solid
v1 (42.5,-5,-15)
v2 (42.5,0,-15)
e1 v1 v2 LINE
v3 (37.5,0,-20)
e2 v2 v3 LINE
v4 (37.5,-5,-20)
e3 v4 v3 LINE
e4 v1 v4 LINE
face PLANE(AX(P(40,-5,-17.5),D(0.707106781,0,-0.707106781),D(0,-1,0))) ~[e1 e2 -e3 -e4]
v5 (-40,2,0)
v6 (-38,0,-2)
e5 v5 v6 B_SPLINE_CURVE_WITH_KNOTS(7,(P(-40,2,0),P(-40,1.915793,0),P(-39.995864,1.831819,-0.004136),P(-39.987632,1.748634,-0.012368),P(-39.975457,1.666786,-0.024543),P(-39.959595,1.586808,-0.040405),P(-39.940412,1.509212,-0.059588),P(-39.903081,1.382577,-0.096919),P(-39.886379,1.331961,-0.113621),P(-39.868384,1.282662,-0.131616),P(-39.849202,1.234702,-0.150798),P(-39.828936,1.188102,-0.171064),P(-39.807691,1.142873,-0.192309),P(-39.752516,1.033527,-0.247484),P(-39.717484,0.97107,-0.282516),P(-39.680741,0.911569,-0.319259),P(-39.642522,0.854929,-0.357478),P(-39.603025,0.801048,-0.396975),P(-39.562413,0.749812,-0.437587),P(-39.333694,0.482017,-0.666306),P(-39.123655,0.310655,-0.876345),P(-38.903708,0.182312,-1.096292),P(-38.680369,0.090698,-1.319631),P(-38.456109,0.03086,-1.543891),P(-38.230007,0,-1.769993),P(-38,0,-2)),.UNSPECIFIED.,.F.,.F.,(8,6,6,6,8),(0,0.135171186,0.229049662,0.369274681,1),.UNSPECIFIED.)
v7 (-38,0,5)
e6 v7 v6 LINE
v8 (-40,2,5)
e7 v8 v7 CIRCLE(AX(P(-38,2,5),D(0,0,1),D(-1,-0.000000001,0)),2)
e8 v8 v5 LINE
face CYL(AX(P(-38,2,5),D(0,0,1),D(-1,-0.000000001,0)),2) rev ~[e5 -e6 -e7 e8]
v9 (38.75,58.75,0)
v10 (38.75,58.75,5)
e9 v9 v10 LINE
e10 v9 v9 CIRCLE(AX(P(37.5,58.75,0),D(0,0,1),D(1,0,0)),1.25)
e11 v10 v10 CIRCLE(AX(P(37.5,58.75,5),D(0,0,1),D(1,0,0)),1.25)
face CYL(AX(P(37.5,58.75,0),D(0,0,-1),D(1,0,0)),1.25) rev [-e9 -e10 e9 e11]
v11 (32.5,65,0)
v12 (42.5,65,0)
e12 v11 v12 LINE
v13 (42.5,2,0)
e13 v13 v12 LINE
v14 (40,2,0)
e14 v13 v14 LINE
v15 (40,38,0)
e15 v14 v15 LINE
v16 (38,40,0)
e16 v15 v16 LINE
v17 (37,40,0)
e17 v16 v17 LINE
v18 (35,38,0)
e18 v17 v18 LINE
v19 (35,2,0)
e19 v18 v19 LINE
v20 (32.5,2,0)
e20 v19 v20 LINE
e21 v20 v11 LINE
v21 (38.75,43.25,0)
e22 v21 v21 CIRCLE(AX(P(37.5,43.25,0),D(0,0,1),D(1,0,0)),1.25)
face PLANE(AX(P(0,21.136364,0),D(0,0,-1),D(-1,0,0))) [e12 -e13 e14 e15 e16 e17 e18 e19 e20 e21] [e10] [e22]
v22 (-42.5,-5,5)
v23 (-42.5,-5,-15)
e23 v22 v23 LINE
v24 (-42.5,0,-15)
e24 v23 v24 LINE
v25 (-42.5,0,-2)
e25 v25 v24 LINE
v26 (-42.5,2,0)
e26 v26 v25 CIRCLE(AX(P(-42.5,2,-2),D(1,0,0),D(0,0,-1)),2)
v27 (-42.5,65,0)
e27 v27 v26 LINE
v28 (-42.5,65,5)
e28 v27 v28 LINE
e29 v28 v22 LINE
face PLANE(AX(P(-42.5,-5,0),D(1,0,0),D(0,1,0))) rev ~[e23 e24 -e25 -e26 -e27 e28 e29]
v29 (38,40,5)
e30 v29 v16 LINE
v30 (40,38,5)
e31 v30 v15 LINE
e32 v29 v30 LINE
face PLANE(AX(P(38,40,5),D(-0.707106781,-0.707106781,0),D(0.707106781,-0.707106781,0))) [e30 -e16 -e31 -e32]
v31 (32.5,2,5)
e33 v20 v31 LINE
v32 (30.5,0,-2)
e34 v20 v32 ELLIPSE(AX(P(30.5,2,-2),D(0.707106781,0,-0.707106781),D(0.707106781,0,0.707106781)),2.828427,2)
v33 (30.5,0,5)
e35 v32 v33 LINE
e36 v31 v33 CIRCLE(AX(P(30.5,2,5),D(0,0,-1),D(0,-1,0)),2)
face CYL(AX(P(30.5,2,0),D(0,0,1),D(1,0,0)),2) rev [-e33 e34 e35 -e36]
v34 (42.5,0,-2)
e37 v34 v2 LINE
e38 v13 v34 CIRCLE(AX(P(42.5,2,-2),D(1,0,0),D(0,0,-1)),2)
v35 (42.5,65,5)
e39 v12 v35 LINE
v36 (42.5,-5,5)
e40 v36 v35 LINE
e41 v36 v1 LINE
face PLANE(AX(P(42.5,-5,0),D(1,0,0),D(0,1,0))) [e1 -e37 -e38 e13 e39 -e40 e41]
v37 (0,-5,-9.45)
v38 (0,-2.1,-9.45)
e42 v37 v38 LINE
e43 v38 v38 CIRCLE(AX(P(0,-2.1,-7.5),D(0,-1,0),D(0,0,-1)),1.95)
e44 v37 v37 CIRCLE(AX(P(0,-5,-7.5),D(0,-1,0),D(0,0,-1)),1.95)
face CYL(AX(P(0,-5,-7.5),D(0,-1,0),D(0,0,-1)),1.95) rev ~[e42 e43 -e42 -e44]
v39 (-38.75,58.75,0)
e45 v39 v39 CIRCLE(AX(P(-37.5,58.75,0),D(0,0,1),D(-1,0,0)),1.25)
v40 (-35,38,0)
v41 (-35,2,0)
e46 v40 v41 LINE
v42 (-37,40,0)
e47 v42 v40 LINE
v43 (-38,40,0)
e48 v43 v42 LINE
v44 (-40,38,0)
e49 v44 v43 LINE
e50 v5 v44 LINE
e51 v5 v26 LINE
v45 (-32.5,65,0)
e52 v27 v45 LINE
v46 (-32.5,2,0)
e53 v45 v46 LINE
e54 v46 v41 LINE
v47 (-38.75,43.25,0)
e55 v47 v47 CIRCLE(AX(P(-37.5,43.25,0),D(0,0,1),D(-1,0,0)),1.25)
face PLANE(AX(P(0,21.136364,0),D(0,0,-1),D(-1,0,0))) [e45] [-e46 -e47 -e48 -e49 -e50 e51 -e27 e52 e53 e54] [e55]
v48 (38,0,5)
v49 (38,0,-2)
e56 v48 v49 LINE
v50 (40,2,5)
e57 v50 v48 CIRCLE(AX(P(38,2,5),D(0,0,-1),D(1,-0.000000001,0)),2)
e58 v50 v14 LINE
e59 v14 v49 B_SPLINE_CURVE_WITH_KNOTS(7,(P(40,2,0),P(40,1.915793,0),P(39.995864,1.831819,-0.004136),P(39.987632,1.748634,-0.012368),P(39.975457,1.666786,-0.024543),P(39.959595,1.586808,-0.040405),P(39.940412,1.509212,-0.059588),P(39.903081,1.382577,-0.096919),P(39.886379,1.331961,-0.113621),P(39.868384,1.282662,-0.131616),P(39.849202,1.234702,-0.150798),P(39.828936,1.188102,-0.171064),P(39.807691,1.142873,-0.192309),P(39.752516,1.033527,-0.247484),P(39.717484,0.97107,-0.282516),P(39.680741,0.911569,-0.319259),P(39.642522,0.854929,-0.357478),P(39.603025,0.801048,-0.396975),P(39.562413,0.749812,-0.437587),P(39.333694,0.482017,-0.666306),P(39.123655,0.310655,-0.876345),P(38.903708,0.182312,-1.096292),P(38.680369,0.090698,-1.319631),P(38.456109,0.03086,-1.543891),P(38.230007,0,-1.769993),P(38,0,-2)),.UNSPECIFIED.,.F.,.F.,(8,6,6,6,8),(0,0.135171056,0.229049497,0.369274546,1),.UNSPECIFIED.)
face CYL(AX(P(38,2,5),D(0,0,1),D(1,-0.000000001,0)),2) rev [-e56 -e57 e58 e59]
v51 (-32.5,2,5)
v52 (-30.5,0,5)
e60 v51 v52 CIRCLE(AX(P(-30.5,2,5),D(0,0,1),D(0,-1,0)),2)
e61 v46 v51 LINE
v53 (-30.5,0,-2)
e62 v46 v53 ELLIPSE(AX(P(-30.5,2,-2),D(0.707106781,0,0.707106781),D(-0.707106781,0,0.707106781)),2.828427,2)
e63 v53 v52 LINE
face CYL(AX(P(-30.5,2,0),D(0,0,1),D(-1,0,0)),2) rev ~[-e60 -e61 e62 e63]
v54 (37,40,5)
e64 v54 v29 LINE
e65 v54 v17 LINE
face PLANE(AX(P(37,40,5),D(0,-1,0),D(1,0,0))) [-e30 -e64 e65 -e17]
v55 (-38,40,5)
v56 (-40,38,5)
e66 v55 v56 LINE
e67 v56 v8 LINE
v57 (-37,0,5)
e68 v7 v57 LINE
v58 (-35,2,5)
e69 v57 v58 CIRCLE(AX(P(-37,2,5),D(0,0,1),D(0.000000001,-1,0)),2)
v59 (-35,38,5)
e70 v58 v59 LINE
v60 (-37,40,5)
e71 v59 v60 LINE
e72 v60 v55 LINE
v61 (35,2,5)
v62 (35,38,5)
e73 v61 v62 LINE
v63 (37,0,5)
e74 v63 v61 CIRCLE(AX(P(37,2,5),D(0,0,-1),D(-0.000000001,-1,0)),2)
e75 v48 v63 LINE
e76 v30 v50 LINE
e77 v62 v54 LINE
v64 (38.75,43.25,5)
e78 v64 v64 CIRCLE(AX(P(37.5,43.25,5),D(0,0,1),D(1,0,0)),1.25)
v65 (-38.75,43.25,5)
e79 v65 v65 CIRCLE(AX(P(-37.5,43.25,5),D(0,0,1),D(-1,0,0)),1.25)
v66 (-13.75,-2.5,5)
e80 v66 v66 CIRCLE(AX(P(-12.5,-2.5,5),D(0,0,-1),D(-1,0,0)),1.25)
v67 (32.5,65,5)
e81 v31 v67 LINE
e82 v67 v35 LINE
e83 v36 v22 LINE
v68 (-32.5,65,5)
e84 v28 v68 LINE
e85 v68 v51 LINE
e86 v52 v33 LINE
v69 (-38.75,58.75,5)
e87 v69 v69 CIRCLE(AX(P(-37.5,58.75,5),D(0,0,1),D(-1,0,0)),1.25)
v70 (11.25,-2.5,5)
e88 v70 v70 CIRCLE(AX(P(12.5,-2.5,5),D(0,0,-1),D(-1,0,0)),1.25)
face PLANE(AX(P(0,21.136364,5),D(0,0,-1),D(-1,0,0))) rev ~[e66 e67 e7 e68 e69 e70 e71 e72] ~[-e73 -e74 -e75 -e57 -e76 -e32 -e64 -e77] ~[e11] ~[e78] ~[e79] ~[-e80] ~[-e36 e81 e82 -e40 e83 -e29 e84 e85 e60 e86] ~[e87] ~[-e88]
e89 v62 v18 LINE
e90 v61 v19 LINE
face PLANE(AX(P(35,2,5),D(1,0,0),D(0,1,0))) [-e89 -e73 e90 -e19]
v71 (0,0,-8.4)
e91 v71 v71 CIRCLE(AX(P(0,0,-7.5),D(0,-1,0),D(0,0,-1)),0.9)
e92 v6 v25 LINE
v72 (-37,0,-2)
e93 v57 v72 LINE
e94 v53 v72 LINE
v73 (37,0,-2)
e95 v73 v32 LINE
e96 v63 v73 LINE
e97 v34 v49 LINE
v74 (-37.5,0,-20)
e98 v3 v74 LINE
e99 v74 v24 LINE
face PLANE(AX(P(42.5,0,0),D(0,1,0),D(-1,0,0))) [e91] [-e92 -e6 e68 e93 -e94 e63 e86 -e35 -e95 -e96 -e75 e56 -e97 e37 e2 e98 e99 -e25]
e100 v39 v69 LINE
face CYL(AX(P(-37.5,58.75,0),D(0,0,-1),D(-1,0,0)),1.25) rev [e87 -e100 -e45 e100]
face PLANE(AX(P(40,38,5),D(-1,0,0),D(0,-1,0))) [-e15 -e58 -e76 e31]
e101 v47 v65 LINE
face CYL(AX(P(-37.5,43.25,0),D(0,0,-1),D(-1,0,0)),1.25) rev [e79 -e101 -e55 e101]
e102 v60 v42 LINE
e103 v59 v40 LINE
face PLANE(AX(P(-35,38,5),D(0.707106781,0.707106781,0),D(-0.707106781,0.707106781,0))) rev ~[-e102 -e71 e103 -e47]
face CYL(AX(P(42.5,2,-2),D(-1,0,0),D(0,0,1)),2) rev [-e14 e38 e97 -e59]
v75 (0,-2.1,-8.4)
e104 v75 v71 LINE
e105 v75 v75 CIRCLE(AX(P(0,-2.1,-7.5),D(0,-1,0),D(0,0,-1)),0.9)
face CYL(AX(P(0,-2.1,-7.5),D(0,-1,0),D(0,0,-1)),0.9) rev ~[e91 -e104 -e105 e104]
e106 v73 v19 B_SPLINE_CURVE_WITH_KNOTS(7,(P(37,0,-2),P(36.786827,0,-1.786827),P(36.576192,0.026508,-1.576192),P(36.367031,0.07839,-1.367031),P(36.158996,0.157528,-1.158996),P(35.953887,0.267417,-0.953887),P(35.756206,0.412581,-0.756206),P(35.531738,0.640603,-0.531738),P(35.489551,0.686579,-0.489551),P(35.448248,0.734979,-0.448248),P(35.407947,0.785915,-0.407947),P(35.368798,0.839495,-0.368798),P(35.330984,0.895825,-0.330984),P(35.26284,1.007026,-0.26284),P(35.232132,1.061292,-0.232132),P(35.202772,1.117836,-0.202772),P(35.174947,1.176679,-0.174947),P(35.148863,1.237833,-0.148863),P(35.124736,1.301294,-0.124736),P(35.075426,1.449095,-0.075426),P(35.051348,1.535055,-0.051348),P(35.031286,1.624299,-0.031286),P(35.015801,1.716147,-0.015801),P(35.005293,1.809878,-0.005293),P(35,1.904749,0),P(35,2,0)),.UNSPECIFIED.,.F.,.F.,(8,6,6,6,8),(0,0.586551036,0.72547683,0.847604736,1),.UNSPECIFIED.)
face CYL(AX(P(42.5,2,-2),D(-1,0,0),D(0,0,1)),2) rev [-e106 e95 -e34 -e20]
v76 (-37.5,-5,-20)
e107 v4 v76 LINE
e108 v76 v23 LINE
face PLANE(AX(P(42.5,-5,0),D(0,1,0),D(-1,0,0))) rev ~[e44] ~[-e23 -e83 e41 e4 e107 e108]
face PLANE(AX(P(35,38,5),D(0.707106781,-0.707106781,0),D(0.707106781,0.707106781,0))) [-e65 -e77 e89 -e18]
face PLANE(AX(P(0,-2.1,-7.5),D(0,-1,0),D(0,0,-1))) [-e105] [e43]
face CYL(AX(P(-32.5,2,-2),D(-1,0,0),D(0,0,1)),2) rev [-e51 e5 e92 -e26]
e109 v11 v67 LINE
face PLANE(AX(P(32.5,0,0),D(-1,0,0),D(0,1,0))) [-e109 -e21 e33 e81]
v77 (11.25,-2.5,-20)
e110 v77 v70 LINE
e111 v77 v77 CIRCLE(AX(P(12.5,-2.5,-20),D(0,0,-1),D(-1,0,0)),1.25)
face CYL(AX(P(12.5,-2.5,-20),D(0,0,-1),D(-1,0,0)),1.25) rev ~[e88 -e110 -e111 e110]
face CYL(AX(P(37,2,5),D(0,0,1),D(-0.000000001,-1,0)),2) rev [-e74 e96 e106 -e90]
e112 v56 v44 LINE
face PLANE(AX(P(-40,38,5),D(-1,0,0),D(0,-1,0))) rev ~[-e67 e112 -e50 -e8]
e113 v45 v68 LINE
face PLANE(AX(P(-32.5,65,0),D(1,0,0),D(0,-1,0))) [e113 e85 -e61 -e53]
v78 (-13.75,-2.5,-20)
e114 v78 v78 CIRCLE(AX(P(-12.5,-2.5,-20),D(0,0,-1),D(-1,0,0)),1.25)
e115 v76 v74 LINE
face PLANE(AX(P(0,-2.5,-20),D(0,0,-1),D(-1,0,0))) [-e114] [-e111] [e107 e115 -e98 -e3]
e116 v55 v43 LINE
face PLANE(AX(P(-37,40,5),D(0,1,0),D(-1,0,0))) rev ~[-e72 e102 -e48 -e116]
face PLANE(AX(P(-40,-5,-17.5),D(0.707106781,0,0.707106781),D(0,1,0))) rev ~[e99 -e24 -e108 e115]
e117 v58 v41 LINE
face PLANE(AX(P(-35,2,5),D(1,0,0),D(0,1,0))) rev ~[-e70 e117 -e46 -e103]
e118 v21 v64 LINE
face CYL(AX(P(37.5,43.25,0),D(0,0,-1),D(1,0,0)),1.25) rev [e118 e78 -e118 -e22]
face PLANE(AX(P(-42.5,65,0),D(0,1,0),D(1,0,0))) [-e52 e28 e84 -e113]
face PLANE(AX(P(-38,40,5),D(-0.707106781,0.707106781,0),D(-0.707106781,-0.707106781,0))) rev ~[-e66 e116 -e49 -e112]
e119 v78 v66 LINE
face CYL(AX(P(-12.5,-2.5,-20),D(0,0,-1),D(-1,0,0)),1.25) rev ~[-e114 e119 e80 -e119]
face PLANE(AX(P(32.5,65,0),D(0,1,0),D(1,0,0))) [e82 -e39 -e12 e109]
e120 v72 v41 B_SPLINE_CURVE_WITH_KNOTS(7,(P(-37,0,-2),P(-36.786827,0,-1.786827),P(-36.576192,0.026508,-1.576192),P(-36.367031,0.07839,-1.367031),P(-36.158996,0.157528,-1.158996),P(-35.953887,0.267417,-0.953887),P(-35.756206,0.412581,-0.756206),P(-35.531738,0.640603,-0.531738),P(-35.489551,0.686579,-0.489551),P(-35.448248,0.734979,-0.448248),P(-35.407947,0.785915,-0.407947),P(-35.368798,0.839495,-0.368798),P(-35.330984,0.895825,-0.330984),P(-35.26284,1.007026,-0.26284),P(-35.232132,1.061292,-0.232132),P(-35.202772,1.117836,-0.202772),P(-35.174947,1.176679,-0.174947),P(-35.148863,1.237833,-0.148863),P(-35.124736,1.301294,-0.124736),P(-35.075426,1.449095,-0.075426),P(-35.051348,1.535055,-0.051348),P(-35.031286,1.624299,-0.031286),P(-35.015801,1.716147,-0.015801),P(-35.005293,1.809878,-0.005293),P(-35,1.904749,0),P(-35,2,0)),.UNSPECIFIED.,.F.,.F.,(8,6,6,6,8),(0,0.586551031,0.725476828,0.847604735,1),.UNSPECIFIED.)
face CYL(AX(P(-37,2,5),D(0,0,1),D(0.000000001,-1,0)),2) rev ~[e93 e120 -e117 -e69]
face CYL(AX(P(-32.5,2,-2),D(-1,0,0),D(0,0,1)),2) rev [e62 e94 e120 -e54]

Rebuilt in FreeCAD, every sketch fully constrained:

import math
import FreeCAD as App
import Part
import Sketcher
Q = App.Units.Quantity


def edges_at(feature, points):
    """Names of the edges that pass closest to the given points."""
    edges = feature.Shape.Edges
    near = lambda p: min(range(len(edges)), key=lambda i: edges[i].distToShape(Part.Vertex(*p))[0])
    return sorted({f"Edge{near(p) + 1}" for p in points})

doc = App.newDocument("Part")
body = doc.addObject("PartDesign::Body", "Body")

sketch1 = doc.addObject("Sketcher::SketchObject", "Sketch")
body.addObject(sketch1)
sketch1.AttachmentSupport = (doc.XY_Plane, [""])
sketch1.MapMode = "FlatFace"
sketch1.addGeometry([
    Part.LineSegment(App.Vector(32.5, 0, 0), App.Vector(-32.5, 0, 0)),
    Part.LineSegment(App.Vector(-32.5, 0, 0), App.Vector(-32.5, 65, 0)),
    Part.LineSegment(App.Vector(-32.5, 65, 0), App.Vector(-42.5, 65, 0)),
    Part.LineSegment(App.Vector(-42.5, 65, 0), App.Vector(-42.5, -5, 0)),
    Part.LineSegment(App.Vector(-42.5, -5, 0), App.Vector(42.5, -5, 0)),
    Part.LineSegment(App.Vector(42.5, -5, 0), App.Vector(42.5, 65, 0)),
    Part.LineSegment(App.Vector(42.5, 65, 0), App.Vector(32.5, 65, 0)),
    Part.LineSegment(App.Vector(32.5, 65, 0), App.Vector(32.5, 0, 0)),
    Part.Circle(App.Vector(37.5, 43.25, 0), App.Vector(0, 0, 1), 1.25),
    Part.Circle(App.Vector(-37.5, 43.25, 0), App.Vector(0, 0, 1), 1.25),
    Part.Circle(App.Vector(37.5, 58.75, 0), App.Vector(0, 0, 1), 1.25),
    Part.Circle(App.Vector(-37.5, 58.75, 0), App.Vector(0, 0, 1), 1.25),
], False)
sketch1.addConstraint([
    Sketcher.Constraint("Coincident", 0, 2, 1, 1),
    Sketcher.Constraint("Coincident", 1, 2, 2, 1),
    Sketcher.Constraint("Coincident", 2, 2, 3, 1),
    Sketcher.Constraint("Coincident", 3, 2, 4, 1),
    Sketcher.Constraint("Coincident", 4, 2, 5, 1),
    Sketcher.Constraint("Coincident", 5, 2, 6, 1),
    Sketcher.Constraint("Coincident", 6, 2, 7, 1),
    Sketcher.Constraint("Coincident", 7, 2, 0, 1),
    Sketcher.Constraint("Horizontal", 0),
    Sketcher.Constraint("Vertical", 1),
    Sketcher.Constraint("Horizontal", 2),
    Sketcher.Constraint("Vertical", 3),
    Sketcher.Constraint("Horizontal", 4),
    Sketcher.Constraint("Vertical", 5),
    Sketcher.Constraint("Horizontal", 6),
    Sketcher.Constraint("Vertical", 7),
    Sketcher.Constraint("Equal", 8, 9),
    Sketcher.Constraint("Equal", 9, 10),
    Sketcher.Constraint("Equal", 10, 11),
    Sketcher.Constraint("Symmetric", 0, 2, 7, 2, -1, 1),
    Sketcher.Constraint("Symmetric", 8, 3, 9, 3, -2),
    Sketcher.Constraint("Symmetric", 10, 3, 11, 3, -2),
    Sketcher.Constraint("Symmetric", 2, 2, 5, 2, -2),
    Sketcher.Constraint("Vertical", 8, 3, 10, 3),
    Sketcher.Constraint("Equal", 0, 1),
    Sketcher.Constraint("Diameter", 8, Q("2.5 mm")),
    Sketcher.Constraint("DistanceX", 0, 2, 0, 1, Q("65 mm")),
    Sketcher.Constraint("DistanceX", 2, 2, 2, 1, Q("10 mm")),
    Sketcher.Constraint("DistanceY", 3, 2, 3, 1, Q("70 mm")),
    Sketcher.Constraint("DistanceX", 9, 3, 8, 3, Q("75 mm")),
    Sketcher.Constraint("DistanceY", 8, 3, 10, 3, Q("15.5 mm")),
    Sketcher.Constraint("DistanceY", -1, 1, 8, 3, Q("43.25 mm")),
])
pad1 = doc.addObject("PartDesign::Pad", "Pad")
body.addObject(pad1)
pad1.Profile = sketch1
pad1.Length = 5

sketch2 = doc.addObject("Sketcher::SketchObject", "Sketch001")
body.addObject(sketch2)
sketch2.AttachmentSupport = (doc.XY_Plane, [""])
sketch2.MapMode = "FlatFace"
sketch2.addGeometry([
    Part.LineSegment(App.Vector(42.5, 0, 0), App.Vector(42.5, -5, 0)),
    Part.LineSegment(App.Vector(42.5, -5, 0), App.Vector(-42.5, -5, 0)),
    Part.LineSegment(App.Vector(-42.5, -5, 0), App.Vector(-42.5, 0, 0)),
    Part.LineSegment(App.Vector(-42.5, 0, 0), App.Vector(42.5, 0, 0)),
], False)
sketch2.addConstraint([
    Sketcher.Constraint("Coincident", 0, 2, 1, 1),
    Sketcher.Constraint("Coincident", 1, 2, 2, 1),
    Sketcher.Constraint("Coincident", 2, 2, 3, 1),
    Sketcher.Constraint("Coincident", 3, 2, 0, 1),
    Sketcher.Constraint("Vertical", 0),
    Sketcher.Constraint("Horizontal", 1),
    Sketcher.Constraint("Vertical", 2),
    Sketcher.Constraint("Horizontal", 3),
    Sketcher.Constraint("Symmetric", 2, 2, 3, 2, -1, 1),
    Sketcher.Constraint("DistanceX", 1, 2, 1, 1, Q("85 mm")),
    Sketcher.Constraint("DistanceY", 0, 2, 0, 1, Q("5 mm")),
])
pad2 = doc.addObject("PartDesign::Pad", "Pad001")
body.addObject(pad2)
pad2.Profile = sketch2
pad2.Length = 20
pad2.Reversed = True
doc.recompute()

fillet = doc.addObject("PartDesign::Fillet", "Fillet")
body.addObject(fillet)
fillet.Base = (pad2, edges_at(pad2, [
    (-37.5, 0, 0),
    (-32.5, 0, 2.5),
    (32.5, 0, 2.5),
    (37.5, 0, 0),
]))
fillet.Radius = 2

sketch3 = doc.addObject("Sketcher::SketchObject", "Sketch002")
body.addObject(sketch3)
sketch3.AttachmentSupport = (doc.XY_Plane, [""])
sketch3.MapMode = "FlatFace"
sketch3.AttachmentOffset = App.Placement(App.Vector(0, 0, 5), App.Rotation())
sketch3.addGeometry([
    Part.LineSegment(App.Vector(-38, 0, 0), App.Vector(-37, 0, 0)),
    Part.ArcOfCircle(Part.Circle(App.Vector(-37, 2, 0), App.Vector(0, 0, 1), 2), math.radians(-90), math.radians(0)),
    Part.LineSegment(App.Vector(-35, 2, 0), App.Vector(-35, 38, 0)),
    Part.LineSegment(App.Vector(-35, 38, 0), App.Vector(-37, 40, 0)),
    Part.LineSegment(App.Vector(-37, 40, 0), App.Vector(-38, 40, 0)),
    Part.LineSegment(App.Vector(-38, 40, 0), App.Vector(-40, 38, 0)),
    Part.LineSegment(App.Vector(-40, 38, 0), App.Vector(-40, 2, 0)),
    Part.ArcOfCircle(Part.Circle(App.Vector(-38, 2, 0), App.Vector(0, 0, 1), 2), math.radians(-180), math.radians(-90)),
    Part.LineSegment(App.Vector(37, 0, 0), App.Vector(38, 0, 0)),
    Part.ArcOfCircle(Part.Circle(App.Vector(38, 2, 0), App.Vector(0, 0, 1), 2), math.radians(-90), math.radians(0)),
    Part.LineSegment(App.Vector(40, 2, 0), App.Vector(40, 38, 0)),
    Part.LineSegment(App.Vector(40, 38, 0), App.Vector(38, 40, 0)),
    Part.LineSegment(App.Vector(38, 40, 0), App.Vector(37, 40, 0)),
    Part.LineSegment(App.Vector(37, 40, 0), App.Vector(35, 38, 0)),
    Part.LineSegment(App.Vector(35, 38, 0), App.Vector(35, 2, 0)),
    Part.ArcOfCircle(Part.Circle(App.Vector(37, 2, 0), App.Vector(0, 0, 1), 2), math.radians(-180), math.radians(-90)),
], False)
sketch3.addConstraint([
    Sketcher.Constraint("Tangent", 0, 2, 1, 1),
    Sketcher.Constraint("Tangent", 1, 2, 2, 1),
    Sketcher.Constraint("Coincident", 2, 2, 3, 1),
    Sketcher.Constraint("Coincident", 3, 2, 4, 1),
    Sketcher.Constraint("Coincident", 4, 2, 5, 1),
    Sketcher.Constraint("Coincident", 5, 2, 6, 1),
    Sketcher.Constraint("Tangent", 6, 2, 7, 1),
    Sketcher.Constraint("Tangent", 7, 2, 0, 1),
    Sketcher.Constraint("Tangent", 8, 2, 9, 1),
    Sketcher.Constraint("Tangent", 9, 2, 10, 1),
    Sketcher.Constraint("Coincident", 10, 2, 11, 1),
    Sketcher.Constraint("Coincident", 11, 2, 12, 1),
    Sketcher.Constraint("Coincident", 12, 2, 13, 1),
    Sketcher.Constraint("Coincident", 13, 2, 14, 1),
    Sketcher.Constraint("Tangent", 14, 2, 15, 1),
    Sketcher.Constraint("Tangent", 15, 2, 8, 1),
    Sketcher.Constraint("Horizontal", 0),
    Sketcher.Constraint("Vertical", 2),
    Sketcher.Constraint("Horizontal", 4),
    Sketcher.Constraint("Vertical", 6),
    Sketcher.Constraint("Horizontal", 8),
    Sketcher.Constraint("Vertical", 10),
    Sketcher.Constraint("Horizontal", 12),
    Sketcher.Constraint("Vertical", 14),
    Sketcher.Constraint("Equal", 1, 7),
    Sketcher.Constraint("Equal", 7, 9),
    Sketcher.Constraint("Equal", 9, 15),
    Sketcher.Constraint("Symmetric", 7, 2, 8, 2, -1, 1),
    Sketcher.Constraint("Symmetric", 1, 3, 15, 3, -2),
    Sketcher.Constraint("Symmetric", 4, 2, 11, 2, -2),
    Sketcher.Constraint("Perpendicular", 3, 5),
    Sketcher.Constraint("Perpendicular", 5, 11),
    Sketcher.Constraint("Perpendicular", 11, 13),
    Sketcher.Constraint("Horizontal", 2, 2, 5, 2),
    Sketcher.Constraint("Horizontal", 5, 2, 10, 2),
    Sketcher.Constraint("Horizontal", 10, 2, 13, 2),
    Sketcher.Constraint("Vertical", 0, 2, 3, 2),
    Sketcher.Constraint("Radius", 1, Q("2 mm")),
    Sketcher.Constraint("DistanceX", 0, 1, 0, 2, Q("1 mm")),
    Sketcher.Constraint("DistanceY", 2, 1, 2, 2, Q("36 mm")),
    Sketcher.Constraint("DistanceX", 1, 3, -1, 1, Q("37 mm")),
])
pocket1 = doc.addObject("PartDesign::Pocket", "Pocket")
body.addObject(pocket1)
pocket1.Profile = sketch3
pocket1.Length = 25

sketch4 = doc.addObject("Sketcher::SketchObject", "Sketch003")
body.addObject(sketch4)
sketch4.AttachmentSupport = (doc.XY_Plane, [""])
sketch4.MapMode = "FlatFace"
sketch4.AttachmentOffset = App.Placement(App.Vector(0, 0, -20), App.Rotation())
sketch4.addGeometry([
    Part.Circle(App.Vector(-12.5, -2.5, 0), App.Vector(0, 0, 1), 1.25),
    Part.Circle(App.Vector(12.5, -2.5, 0), App.Vector(0, 0, 1), 1.25),
], False)
sketch4.addConstraint([
    Sketcher.Constraint("Equal", 0, 1),
    Sketcher.Constraint("Symmetric", 0, 3, 1, 3, -2),
    Sketcher.Constraint("Diameter", 0, Q("2.5 mm")),
    Sketcher.Constraint("DistanceX", 0, 3, 1, 3, Q("25 mm")),
    Sketcher.Constraint("DistanceY", 0, 3, -1, 1, Q("2.5 mm")),
])
pocket2 = doc.addObject("PartDesign::Pocket", "Pocket001")
body.addObject(pocket2)
pocket2.Profile = sketch4
pocket2.Length = 58
pocket2.Reversed = True

sketch5 = doc.addObject("Sketcher::SketchObject", "Sketch004")
body.addObject(sketch5)
sketch5.AttachmentSupport = (doc.XZ_Plane, [""])
sketch5.MapMode = "FlatFace"
sketch5.AttachmentOffset = App.Placement(App.Vector(0, 0, 5), App.Rotation())
sketch5.addGeometry(Part.Circle(App.Vector(0, -7.5, 0), App.Vector(0, 0, 1), 1.95), False)
sketch5.addConstraint([
    Sketcher.Constraint("PointOnObject", 0, 3, -2),
    Sketcher.Constraint("Diameter", 0, Q("3.9 mm")),
    Sketcher.Constraint("DistanceY", 0, 3, -1, 1, Q("7.5 mm")),
])
pocket3 = doc.addObject("PartDesign::Pocket", "Pocket002")
body.addObject(pocket3)
pocket3.Profile = sketch5
pocket3.Length = 2.9

sketch6 = doc.addObject("Sketcher::SketchObject", "Sketch005")
body.addObject(sketch6)
sketch6.AttachmentSupport = (doc.XZ_Plane, [""])
sketch6.MapMode = "FlatFace"
sketch6.AttachmentOffset = App.Placement(App.Vector(0, 0, 2.1), App.Rotation())
sketch6.addGeometry(Part.Circle(App.Vector(0, -7.5, 0), App.Vector(0, 0, 1), 0.9), False)
sketch6.addConstraint([
    Sketcher.Constraint("PointOnObject", 0, 3, -2),
    Sketcher.Constraint("Diameter", 0, Q("1.8 mm")),
    Sketcher.Constraint("DistanceY", 0, 3, -1, 1, Q("7.5 mm")),
])
pocket4 = doc.addObject("PartDesign::Pocket", "Pocket003")
body.addObject(pocket4)
pocket4.Profile = sketch6
pocket4.Length = 6.9
doc.recompute()

chamfer = doc.addObject("PartDesign::Chamfer", "Chamfer")
body.addObject(chamfer)
chamfer.Base = (pocket4, edges_at(pocket4, [(-42.5, -2.5, -20), (42.5, -2.5, -20)]))
chamfer.Size = 5

doc.recompute()
